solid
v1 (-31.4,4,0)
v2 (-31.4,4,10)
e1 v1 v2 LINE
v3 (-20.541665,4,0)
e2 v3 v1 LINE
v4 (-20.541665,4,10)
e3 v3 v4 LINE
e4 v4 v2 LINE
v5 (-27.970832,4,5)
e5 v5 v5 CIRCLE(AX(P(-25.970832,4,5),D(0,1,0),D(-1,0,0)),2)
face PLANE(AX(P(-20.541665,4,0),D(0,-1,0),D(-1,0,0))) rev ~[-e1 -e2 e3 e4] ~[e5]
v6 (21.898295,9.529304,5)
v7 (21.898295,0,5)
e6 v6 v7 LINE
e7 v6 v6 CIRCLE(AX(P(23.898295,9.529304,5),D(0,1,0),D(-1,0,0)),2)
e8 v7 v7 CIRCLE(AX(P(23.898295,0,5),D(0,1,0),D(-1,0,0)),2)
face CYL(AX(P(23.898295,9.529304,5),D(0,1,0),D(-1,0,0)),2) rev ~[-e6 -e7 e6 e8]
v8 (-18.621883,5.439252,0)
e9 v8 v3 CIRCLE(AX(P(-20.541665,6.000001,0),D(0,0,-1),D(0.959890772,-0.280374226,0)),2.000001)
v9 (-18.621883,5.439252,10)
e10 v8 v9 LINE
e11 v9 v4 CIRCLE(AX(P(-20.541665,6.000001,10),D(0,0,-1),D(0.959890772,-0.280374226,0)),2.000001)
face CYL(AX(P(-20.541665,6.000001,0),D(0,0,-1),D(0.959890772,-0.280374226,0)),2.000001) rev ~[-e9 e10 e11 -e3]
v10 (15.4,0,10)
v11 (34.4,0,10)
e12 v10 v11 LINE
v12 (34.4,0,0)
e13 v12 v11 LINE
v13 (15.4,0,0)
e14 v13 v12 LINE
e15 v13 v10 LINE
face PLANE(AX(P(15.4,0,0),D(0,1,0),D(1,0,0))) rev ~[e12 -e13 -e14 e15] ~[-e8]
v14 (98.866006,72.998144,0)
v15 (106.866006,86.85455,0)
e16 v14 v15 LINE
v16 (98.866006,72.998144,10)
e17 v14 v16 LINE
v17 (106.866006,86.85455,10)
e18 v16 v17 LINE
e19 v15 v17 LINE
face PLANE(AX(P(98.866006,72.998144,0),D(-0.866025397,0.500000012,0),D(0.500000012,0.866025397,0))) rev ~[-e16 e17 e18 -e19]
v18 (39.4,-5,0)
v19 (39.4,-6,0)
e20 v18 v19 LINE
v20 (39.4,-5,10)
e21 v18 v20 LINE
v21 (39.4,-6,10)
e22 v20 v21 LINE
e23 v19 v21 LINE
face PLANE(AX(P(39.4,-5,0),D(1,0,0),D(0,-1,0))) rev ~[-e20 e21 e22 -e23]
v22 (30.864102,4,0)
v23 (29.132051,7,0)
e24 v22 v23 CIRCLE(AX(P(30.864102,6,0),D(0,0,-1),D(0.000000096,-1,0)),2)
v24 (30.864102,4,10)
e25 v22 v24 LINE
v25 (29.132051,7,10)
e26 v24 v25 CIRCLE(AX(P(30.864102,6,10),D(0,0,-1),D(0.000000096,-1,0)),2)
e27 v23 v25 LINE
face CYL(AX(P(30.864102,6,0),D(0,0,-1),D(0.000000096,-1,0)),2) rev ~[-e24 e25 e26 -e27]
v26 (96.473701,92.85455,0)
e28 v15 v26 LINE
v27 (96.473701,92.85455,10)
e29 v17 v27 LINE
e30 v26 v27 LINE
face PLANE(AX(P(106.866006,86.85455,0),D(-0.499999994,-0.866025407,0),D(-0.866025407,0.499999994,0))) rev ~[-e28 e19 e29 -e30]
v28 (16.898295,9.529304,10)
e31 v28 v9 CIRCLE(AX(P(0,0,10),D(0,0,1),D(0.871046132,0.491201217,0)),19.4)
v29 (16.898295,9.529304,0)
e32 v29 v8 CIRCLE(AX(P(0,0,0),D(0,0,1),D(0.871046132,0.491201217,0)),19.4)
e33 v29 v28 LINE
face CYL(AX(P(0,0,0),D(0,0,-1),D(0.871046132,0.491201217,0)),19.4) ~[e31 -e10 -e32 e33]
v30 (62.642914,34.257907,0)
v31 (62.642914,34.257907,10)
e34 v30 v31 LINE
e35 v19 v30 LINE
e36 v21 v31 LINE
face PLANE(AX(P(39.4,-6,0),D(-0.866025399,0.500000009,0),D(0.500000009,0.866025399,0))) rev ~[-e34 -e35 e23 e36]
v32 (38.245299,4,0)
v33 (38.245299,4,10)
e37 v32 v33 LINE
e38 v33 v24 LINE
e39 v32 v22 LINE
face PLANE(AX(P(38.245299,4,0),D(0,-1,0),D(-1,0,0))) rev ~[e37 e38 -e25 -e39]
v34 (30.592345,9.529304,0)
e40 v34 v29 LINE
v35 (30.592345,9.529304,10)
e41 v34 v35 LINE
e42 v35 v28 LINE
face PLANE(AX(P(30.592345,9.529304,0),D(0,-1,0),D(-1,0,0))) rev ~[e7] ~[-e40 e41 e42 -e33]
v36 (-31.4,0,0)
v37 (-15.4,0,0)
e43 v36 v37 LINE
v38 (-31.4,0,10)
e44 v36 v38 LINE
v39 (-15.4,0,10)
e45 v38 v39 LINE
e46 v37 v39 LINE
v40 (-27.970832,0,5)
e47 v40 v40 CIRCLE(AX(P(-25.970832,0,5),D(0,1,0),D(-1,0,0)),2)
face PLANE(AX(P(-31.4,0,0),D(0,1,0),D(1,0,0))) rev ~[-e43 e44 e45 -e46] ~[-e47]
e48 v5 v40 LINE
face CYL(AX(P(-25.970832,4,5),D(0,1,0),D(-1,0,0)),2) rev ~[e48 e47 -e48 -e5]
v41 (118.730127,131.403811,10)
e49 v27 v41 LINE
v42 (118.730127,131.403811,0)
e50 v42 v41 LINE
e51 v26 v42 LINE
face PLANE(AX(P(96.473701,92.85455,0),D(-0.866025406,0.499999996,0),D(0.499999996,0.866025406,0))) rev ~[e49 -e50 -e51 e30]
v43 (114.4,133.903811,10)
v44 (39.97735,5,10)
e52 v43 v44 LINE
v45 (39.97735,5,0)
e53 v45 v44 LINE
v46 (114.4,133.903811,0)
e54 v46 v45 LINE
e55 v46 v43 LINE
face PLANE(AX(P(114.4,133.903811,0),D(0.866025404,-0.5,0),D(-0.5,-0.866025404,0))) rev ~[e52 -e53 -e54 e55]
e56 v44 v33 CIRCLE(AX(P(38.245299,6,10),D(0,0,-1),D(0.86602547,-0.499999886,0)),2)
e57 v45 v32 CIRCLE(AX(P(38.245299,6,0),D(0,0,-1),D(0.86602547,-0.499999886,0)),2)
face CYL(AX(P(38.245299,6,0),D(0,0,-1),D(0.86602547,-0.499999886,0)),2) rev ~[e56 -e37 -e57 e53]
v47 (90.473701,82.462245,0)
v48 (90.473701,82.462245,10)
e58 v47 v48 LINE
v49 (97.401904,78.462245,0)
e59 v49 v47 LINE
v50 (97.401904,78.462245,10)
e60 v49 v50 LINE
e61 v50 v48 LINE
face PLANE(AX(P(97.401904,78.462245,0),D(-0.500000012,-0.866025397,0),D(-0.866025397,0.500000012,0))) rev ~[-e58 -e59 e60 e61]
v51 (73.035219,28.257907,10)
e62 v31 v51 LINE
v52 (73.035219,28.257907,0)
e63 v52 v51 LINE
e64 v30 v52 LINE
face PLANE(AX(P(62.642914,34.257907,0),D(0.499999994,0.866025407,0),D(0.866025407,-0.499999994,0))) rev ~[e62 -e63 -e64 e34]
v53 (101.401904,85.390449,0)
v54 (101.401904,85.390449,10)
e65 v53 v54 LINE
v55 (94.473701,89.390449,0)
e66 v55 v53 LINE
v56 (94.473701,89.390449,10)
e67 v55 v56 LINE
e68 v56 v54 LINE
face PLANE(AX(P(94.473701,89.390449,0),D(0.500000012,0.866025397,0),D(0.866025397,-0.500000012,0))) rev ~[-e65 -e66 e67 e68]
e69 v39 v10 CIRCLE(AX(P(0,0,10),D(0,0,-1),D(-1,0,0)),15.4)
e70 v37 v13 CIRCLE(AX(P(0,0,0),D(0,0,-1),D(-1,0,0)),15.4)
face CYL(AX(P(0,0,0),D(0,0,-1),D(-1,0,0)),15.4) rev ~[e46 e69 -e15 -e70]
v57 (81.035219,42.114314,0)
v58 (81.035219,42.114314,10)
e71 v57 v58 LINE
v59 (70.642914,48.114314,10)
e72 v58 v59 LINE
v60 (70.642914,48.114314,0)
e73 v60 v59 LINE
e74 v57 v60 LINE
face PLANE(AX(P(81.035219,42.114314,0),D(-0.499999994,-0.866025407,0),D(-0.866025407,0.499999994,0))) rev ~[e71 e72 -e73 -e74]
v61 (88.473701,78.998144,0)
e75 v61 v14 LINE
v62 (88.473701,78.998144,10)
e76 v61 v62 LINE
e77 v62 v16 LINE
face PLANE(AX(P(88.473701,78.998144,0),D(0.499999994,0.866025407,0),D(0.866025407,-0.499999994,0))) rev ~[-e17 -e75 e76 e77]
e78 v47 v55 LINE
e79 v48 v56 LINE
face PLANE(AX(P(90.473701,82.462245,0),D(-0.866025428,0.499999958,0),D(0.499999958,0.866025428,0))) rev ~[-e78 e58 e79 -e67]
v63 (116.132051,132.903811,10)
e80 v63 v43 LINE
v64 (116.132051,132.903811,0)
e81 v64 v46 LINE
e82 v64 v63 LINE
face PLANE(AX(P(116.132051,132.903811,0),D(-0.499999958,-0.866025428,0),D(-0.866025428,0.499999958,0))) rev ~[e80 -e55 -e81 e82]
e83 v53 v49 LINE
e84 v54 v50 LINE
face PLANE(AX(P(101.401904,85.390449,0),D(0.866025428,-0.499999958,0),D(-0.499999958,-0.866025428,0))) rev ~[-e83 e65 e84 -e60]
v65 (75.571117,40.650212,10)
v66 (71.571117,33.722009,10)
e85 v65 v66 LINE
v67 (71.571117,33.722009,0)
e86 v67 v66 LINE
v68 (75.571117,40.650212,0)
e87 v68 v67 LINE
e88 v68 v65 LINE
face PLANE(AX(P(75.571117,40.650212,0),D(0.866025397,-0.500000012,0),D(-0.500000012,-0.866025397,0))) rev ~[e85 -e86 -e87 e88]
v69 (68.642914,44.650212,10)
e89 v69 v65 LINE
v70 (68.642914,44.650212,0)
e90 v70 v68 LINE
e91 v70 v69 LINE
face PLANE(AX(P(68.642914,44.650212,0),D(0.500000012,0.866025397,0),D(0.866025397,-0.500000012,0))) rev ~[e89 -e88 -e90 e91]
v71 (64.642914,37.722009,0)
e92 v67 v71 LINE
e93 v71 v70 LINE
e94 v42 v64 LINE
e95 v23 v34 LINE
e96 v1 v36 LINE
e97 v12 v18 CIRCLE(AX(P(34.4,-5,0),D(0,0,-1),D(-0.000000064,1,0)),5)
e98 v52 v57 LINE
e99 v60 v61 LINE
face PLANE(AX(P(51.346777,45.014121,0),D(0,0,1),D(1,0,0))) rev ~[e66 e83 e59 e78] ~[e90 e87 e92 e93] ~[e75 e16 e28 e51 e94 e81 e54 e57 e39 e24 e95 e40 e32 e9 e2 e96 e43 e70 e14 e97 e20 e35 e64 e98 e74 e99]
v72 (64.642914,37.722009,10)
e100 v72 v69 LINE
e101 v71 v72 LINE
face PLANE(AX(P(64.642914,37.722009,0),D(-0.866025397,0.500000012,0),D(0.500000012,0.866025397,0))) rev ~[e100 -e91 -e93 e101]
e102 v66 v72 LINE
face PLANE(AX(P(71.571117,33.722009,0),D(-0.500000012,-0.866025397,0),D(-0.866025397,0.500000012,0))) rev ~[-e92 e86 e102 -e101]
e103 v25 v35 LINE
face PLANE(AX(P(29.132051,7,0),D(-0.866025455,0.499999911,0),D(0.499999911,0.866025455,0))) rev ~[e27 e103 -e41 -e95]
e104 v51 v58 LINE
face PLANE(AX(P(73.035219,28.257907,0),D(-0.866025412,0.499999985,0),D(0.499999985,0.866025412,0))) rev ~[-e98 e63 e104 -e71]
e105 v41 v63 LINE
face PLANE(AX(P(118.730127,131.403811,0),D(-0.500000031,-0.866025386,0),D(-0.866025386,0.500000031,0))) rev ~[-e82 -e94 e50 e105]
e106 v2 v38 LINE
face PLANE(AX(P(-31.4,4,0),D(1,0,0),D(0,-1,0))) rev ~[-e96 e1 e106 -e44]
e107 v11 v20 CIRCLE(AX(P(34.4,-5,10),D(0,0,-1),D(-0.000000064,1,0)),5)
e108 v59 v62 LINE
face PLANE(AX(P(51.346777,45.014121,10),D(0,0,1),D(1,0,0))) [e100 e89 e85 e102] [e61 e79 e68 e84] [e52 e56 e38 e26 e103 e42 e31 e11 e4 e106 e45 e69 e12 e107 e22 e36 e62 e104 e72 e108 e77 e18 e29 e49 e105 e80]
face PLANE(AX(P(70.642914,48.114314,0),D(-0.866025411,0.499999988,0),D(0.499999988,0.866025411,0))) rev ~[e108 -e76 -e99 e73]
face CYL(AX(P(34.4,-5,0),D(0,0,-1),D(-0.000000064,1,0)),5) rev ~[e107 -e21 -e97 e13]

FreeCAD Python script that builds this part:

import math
import FreeCAD as App
import Part
import Sketcher
from FreeCAD import Vector
Q = App.Units.Quantity


def add_polygon(sketch, points):
    """Adds a closed chain of lines whose ends are joined by coincident constraints."""
    first, n = sketch.GeometryCount, len(points)
    for a, b in zip(points, points[1:] + points[:1]):
        sketch.addGeometry(Part.LineSegment(App.Vector(*a, 0), App.Vector(*b, 0)), False)
    for i in range(n):
        sketch.addConstraint(Sketcher.Constraint("Coincident", first + i, 2, first + (i + 1) % n, 1))

doc = App.newDocument("Part")
params = doc.addObject("Spreadsheet::Sheet", "Params")
for row, (alias, value) in enumerate([
    ("sketch1_radius", "5 mm"),
    ("sketch1_radius2", "2 mm"),
    ("sketch1_radius3", "15.4 mm"),
    ("sketch1_radius4", "19.4 mm"),
    ("sketch1_width", "19 mm"),
    ("pad1_length", "10 mm"),
    ("sketch2_diameter", "4 mm"),
    ("sketch3_diameter", "4 mm"),
], start=1):
    params.set(f"A{row}", alias)
    params.set(f"B{row}", "=" + value)
    params.setAlias(f"B{row}", alias)

body = doc.addObject("PartDesign::Body", "Body")

# Sketch on XY plane
sketch1 = body.newObject("Sketcher::SketchObject", "Sketch")
sketch1.AttachmentSupport = (doc.getObject("XY_Plane"), [""])
sketch1.MapMode = "FlatFace"
sketch1.addGeometry(Part.ArcOfCircle(Part.Circle(Vector(0, 0, 0), Vector(0, 0, 1), 15.4), math.radians(0), math.radians(180)), False)  # 0
sketch1.addGeometry(Part.LineSegment(Vector(15.4, 0, 0), Vector(34.4, 0, 0)), False)  # 1
sketch1.addGeometry(Part.ArcOfCircle(Part.Circle(Vector(34.4, -5, 0), Vector(0, 0, 1), 5), math.radians(0), math.radians(90)), False)  # 2
sketch1.addGeometry(Part.LineSegment(Vector(39.4, -5, 0), Vector(39.4, -6, 0)), False)  # 3
sketch1.addGeometry(Part.LineSegment(Vector(39.4, -6, 0), Vector(62.6, 34.3, 0)), False)  # 4
sketch1.addGeometry(Part.LineSegment(Vector(62.6, 34.3, 0), Vector(73, 28.3, 0)), False)  # 5
sketch1.addGeometry(Part.LineSegment(Vector(73, 28.3, 0), Vector(81, 42.1, 0)), False)  # 6
sketch1.addGeometry(Part.LineSegment(Vector(81, 42.1, 0), Vector(70.6, 48.1, 0)), False)  # 7
sketch1.addGeometry(Part.LineSegment(Vector(70.6, 48.1, 0), Vector(88.5, 79, 0)), False)  # 8
sketch1.addGeometry(Part.LineSegment(Vector(88.5, 79, 0), Vector(98.9, 73, 0)), False)  # 9
sketch1.addGeometry(Part.LineSegment(Vector(98.9, 73, 0), Vector(106.9, 86.9, 0)), False)  # 10
sketch1.addGeometry(Part.LineSegment(Vector(106.9, 86.9, 0), Vector(96.5, 92.9, 0)), False)  # 11
sketch1.addGeometry(Part.LineSegment(Vector(96.5, 92.9, 0), Vector(118.7, 131.4, 0)), False)  # 12
sketch1.addGeometry(Part.LineSegment(Vector(118.7, 131.4, 0), Vector(116.1, 132.9, 0)), False)  # 13
sketch1.addGeometry(Part.LineSegment(Vector(116.1, 132.9, 0), Vector(114.4, 133.9, 0)), False)  # 14
sketch1.addGeometry(Part.LineSegment(Vector(114.4, 133.9, 0), Vector(40, 5, 0)), False)  # 15
sketch1.addGeometry(Part.ArcOfCircle(Part.Circle(Vector(38.2, 6, 0), Vector(0, 0, 1), 2), math.radians(-90), math.radians(-30)), False)  # 16
sketch1.addGeometry(Part.LineSegment(Vector(38.2, 4, 0), Vector(30.9, 4, 0)), False)  # 17
sketch1.addGeometry(Part.ArcOfCircle(Part.Circle(Vector(30.9, 6, 0), Vector(0, 0, 1), 2), math.radians(150), math.radians(270)), False)  # 18
sketch1.addGeometry(Part.LineSegment(Vector(29.1, 7, 0), Vector(30.6, 9.5, 0)), False)  # 19
sketch1.addGeometry(Part.LineSegment(Vector(30.6, 9.5, 0), Vector(16.9, 9.5, 0)), False)  # 20
sketch1.addGeometry(Part.ArcOfCircle(Part.Circle(Vector(0, 0, 0), Vector(0, 0, 1), 19.4), math.radians(29), math.radians(164)), False)  # 21
sketch1.addGeometry(Part.ArcOfCircle(Part.Circle(Vector(-20.5, 6, 0), Vector(0, 0, 1), 2), math.radians(-90), math.radians(-16)), False)  # 22
sketch1.addGeometry(Part.LineSegment(Vector(-20.5, 4, 0), Vector(-31.4, 4, 0)), False)  # 23
sketch1.addGeometry(Part.LineSegment(Vector(-31.4, 4, 0), Vector(-31.4, 0, 0)), False)  # 24
sketch1.addGeometry(Part.LineSegment(Vector(-31.4, 0, 0), Vector(-15.4, 0, 0)), False)  # 25
add_polygon(sketch1, [(90.5, 82.5), (94.5, 89.4), (101.4, 85.4), (97.4, 78.5)])  # lines 26-29
add_polygon(sketch1, [(64.6, 37.7), (68.6, 44.7), (75.6, 40.7), (71.6, 33.7)])  # lines 30-33
sketch1.addConstraint([
    Sketcher.Constraint("Coincident", 0, 1, 1, 1),
    Sketcher.Constraint("Tangent", 1, 2, 2, 2),
    Sketcher.Constraint("Tangent", 2, 1, 3, 1),
    Sketcher.Constraint("Coincident", 3, 2, 4, 1),
    Sketcher.Constraint("Coincident", 4, 2, 5, 1),
    Sketcher.Constraint("Coincident", 5, 2, 6, 1),
    Sketcher.Constraint("Coincident", 6, 2, 7, 1),
    Sketcher.Constraint("Coincident", 7, 2, 8, 1),
    Sketcher.Constraint("Coincident", 8, 2, 9, 1),
    Sketcher.Constraint("Coincident", 9, 2, 10, 1),
    Sketcher.Constraint("Coincident", 10, 2, 11, 1),
    Sketcher.Constraint("Coincident", 11, 2, 12, 1),
    Sketcher.Constraint("Coincident", 12, 2, 13, 1),
    Sketcher.Constraint("Coincident", 13, 2, 14, 1),
    Sketcher.Constraint("Coincident", 14, 2, 15, 1),
    Sketcher.Constraint("Tangent", 15, 2, 16, 2),
    Sketcher.Constraint("Tangent", 16, 1, 17, 1),
    Sketcher.Constraint("Tangent", 17, 2, 18, 2),
    Sketcher.Constraint("Tangent", 18, 1, 19, 1),
    Sketcher.Constraint("Coincident", 19, 2, 20, 1),
    Sketcher.Constraint("Coincident", 20, 2, 21, 1),
    Sketcher.Constraint("Tangent", 21, 2, 22, 2),
    Sketcher.Constraint("Tangent", 22, 1, 23, 1),
    Sketcher.Constraint("Coincident", 23, 2, 24, 1),
    Sketcher.Constraint("Coincident", 24, 2, 25, 1),
    Sketcher.Constraint("Coincident", 25, 2, 0, 2),
    Sketcher.Constraint("Horizontal", 1),
    Sketcher.Constraint("Vertical", 3),
    Sketcher.Constraint("Horizontal", 17),
    Sketcher.Constraint("Horizontal", 20),
    Sketcher.Constraint("Horizontal", 23),
    Sketcher.Constraint("Vertical", 24),
    Sketcher.Constraint("Horizontal", 25),
    Sketcher.Constraint("Coincident", 0, 3, -1, 1),
    Sketcher.Constraint("Coincident", 21, 3, -1, 1),
    Sketcher.Constraint("Equal", 16, 18),
    Sketcher.Constraint("Equal", 18, 22),
    Sketcher.Constraint("PointOnObject", 0, 1, -1),
    Sketcher.Constraint("PointOnObject", 24, 2, -1),
    Sketcher.Constraint("Perpendicular", 4, 5),
    Sketcher.Constraint("Perpendicular", 5, 6),
    Sketcher.Constraint("Perpendicular", 6, 7),
    Sketcher.Constraint("Perpendicular", 7, 8),
    Sketcher.Constraint("Perpendicular", 8, 9),
    Sketcher.Constraint("Perpendicular", 9, 10),
    Sketcher.Constraint("Perpendicular", 10, 11),
    Sketcher.Constraint("Perpendicular", 11, 12),
    Sketcher.Constraint("Perpendicular", 12, 13),
    Sketcher.Constraint("Parallel", 13, 14),
    Sketcher.Constraint("Perpendicular", 14, 15),
    Sketcher.Constraint("Parallel", 15, 19),
    Sketcher.Constraint("Parallel", 19, 26),
    Sketcher.Constraint("Perpendicular", 26, 27),
    Sketcher.Constraint("Perpendicular", 27, 28),
    Sketcher.Constraint("Perpendicular", 28, 29),
    Sketcher.Constraint("Perpendicular", 29, 30),
    Sketcher.Constraint("Perpendicular", 30, 31),
    Sketcher.Constraint("Perpendicular", 31, 32),
    Sketcher.Constraint("Perpendicular", 32, 33),
    Sketcher.Constraint("Horizontal", 18, 3, 22, 3),
    Sketcher.Constraint("Equal", 5, 7),
    Sketcher.Constraint("Equal", 7, 9),
    Sketcher.Constraint("Equal", 6, 10),
    Sketcher.Constraint("Equal", 9, 11),
    Sketcher.Constraint("Equal", 26, 27),
    Sketcher.Constraint("Equal", 29, 30),
    Sketcher.Constraint("Equal", 30, 31),
    Sketcher.Constraint("Radius", 2, Q("5 mm")),
    Sketcher.Constraint("Radius", 16, Q("2 mm")),
    Sketcher.Constraint("Radius", 0, Q("15.4 mm")),
    Sketcher.Constraint("Radius", 21, Q("19.4 mm")),
    Sketcher.Constraint("DistanceX", 1, 1, 1, 2, Q("19 mm")),
    Sketcher.Constraint("DistanceX", 25, 1, 25, 2, Q("16 mm")),
    Sketcher.Constraint("DistanceY", 3, 2, 3, 1, Q("1 mm")),
    Sketcher.Constraint("DistanceY", 24, 2, 24, 1, Q("4 mm")),
    Sketcher.Constraint("Angle", 4, Q("59.999999 deg")),
    Sketcher.Constraint("Distance", 5, Q("12 mm")),
    Sketcher.Constraint("Distance", 6, Q("16 mm")),
    Sketcher.Constraint("Distance", 13, Q("3 mm")),
    Sketcher.Constraint("Distance", 14, Q("2 mm")),
    Sketcher.Constraint("Distance", 26, Q("8.000001 mm")),
    Sketcher.Constraint("DistanceX", 26, 2, 11, 2, Q("2 mm")),
    Sketcher.Constraint("DistanceX", 30, 2, 7, 2, Q("2 mm")),
    Sketcher.Constraint("DistanceX", -1, 1, 14, 2, Q("114.4 mm")),
    Sketcher.Constraint("DistanceX", 20, 2, 20, 1, Q("13.69405 mm")),
    Sketcher.Constraint("DistanceX", -1, 1, 18, 3, Q("30.864102 mm")),
    Sketcher.Constraint("DistanceX", -1, 1, 8, 2, Q("88.473701 mm")),
    Sketcher.Constraint("DistanceY", 26, 2, 11, 2, Q("3.464101 mm")),
    Sketcher.Constraint("DistanceY", 30, 2, 7, 2, Q("3.464102 mm")),
    Sketcher.Constraint("DistanceX", -1, 1, 5, 2, Q("73.035219 mm")),
])
sketch1.setExpression("Constraints[75]", "Params.sketch1_radius")
sketch1.setExpression("Constraints[76]", "Params.sketch1_radius2")
sketch1.setExpression("Constraints[77]", "Params.sketch1_radius3")
sketch1.setExpression("Constraints[78]", "Params.sketch1_radius4")
sketch1.setExpression("Constraints[79]", "Params.sketch1_width")
pad1 = body.newObject("PartDesign::Pad", "Pad")
pad1.Profile = sketch1
pad1.setExpression("Length", "Params.pad1_length")

# Sketch on XZ plane
sketch2 = body.newObject("Sketcher::SketchObject", "Sketch001")
sketch2.AttachmentSupport = (doc.getObject("XZ_Plane"), [""])
sketch2.MapMode = "FlatFace"
sketch2.AttachmentOffset = App.Placement(Vector(0, 0, -4), App.Rotation())
sketch2.addGeometry(Part.Circle(Vector(-26, 5, 0), Vector(0, 0, 1), 2), False)
sketch2.addConstraint([
    Sketcher.Constraint("Diameter", 0, Q("4 mm")),
    Sketcher.Constraint("DistanceY", -1, 1, 0, 3, Q("5 mm")),
    Sketcher.Constraint("DistanceX", 0, 3, -1, 1, Q("25.970832 mm")),
])
sketch2.setExpression("Constraints[0]", "Params.sketch2_diameter")
pocket1 = body.newObject("PartDesign::Pocket", "Pocket")
pocket1.Profile = sketch2
pocket1.Type = "ThroughAll"
pocket1.Reversed = True

# Sketch on XZ plane
sketch3 = body.newObject("Sketcher::SketchObject", "Sketch002")
sketch3.AttachmentSupport = (doc.getObject("XZ_Plane"), [""])
sketch3.MapMode = "FlatFace"
sketch3.AttachmentOffset = App.Placement(Vector(0, 0, -9.529304), App.Rotation())
sketch3.addGeometry(Part.Circle(Vector(23.9, 5, 0), Vector(0, 0, 1), 2), False)
sketch3.addConstraint([
    Sketcher.Constraint("Diameter", 0, Q("4 mm")),
    Sketcher.Constraint("DistanceY", -1, 1, 0, 3, Q("5 mm")),
    Sketcher.Constraint("DistanceX", -1, 1, 0, 3, Q("23.898295 mm")),
])
sketch3.setExpression("Constraints[0]", "Params.sketch3_diameter")
pocket2 = body.newObject("PartDesign::Pocket", "Pocket001")
pocket2.Profile = sketch3
pocket2.Type = "ThroughAll"
pocket2.Reversed = True

doc.recompute()
